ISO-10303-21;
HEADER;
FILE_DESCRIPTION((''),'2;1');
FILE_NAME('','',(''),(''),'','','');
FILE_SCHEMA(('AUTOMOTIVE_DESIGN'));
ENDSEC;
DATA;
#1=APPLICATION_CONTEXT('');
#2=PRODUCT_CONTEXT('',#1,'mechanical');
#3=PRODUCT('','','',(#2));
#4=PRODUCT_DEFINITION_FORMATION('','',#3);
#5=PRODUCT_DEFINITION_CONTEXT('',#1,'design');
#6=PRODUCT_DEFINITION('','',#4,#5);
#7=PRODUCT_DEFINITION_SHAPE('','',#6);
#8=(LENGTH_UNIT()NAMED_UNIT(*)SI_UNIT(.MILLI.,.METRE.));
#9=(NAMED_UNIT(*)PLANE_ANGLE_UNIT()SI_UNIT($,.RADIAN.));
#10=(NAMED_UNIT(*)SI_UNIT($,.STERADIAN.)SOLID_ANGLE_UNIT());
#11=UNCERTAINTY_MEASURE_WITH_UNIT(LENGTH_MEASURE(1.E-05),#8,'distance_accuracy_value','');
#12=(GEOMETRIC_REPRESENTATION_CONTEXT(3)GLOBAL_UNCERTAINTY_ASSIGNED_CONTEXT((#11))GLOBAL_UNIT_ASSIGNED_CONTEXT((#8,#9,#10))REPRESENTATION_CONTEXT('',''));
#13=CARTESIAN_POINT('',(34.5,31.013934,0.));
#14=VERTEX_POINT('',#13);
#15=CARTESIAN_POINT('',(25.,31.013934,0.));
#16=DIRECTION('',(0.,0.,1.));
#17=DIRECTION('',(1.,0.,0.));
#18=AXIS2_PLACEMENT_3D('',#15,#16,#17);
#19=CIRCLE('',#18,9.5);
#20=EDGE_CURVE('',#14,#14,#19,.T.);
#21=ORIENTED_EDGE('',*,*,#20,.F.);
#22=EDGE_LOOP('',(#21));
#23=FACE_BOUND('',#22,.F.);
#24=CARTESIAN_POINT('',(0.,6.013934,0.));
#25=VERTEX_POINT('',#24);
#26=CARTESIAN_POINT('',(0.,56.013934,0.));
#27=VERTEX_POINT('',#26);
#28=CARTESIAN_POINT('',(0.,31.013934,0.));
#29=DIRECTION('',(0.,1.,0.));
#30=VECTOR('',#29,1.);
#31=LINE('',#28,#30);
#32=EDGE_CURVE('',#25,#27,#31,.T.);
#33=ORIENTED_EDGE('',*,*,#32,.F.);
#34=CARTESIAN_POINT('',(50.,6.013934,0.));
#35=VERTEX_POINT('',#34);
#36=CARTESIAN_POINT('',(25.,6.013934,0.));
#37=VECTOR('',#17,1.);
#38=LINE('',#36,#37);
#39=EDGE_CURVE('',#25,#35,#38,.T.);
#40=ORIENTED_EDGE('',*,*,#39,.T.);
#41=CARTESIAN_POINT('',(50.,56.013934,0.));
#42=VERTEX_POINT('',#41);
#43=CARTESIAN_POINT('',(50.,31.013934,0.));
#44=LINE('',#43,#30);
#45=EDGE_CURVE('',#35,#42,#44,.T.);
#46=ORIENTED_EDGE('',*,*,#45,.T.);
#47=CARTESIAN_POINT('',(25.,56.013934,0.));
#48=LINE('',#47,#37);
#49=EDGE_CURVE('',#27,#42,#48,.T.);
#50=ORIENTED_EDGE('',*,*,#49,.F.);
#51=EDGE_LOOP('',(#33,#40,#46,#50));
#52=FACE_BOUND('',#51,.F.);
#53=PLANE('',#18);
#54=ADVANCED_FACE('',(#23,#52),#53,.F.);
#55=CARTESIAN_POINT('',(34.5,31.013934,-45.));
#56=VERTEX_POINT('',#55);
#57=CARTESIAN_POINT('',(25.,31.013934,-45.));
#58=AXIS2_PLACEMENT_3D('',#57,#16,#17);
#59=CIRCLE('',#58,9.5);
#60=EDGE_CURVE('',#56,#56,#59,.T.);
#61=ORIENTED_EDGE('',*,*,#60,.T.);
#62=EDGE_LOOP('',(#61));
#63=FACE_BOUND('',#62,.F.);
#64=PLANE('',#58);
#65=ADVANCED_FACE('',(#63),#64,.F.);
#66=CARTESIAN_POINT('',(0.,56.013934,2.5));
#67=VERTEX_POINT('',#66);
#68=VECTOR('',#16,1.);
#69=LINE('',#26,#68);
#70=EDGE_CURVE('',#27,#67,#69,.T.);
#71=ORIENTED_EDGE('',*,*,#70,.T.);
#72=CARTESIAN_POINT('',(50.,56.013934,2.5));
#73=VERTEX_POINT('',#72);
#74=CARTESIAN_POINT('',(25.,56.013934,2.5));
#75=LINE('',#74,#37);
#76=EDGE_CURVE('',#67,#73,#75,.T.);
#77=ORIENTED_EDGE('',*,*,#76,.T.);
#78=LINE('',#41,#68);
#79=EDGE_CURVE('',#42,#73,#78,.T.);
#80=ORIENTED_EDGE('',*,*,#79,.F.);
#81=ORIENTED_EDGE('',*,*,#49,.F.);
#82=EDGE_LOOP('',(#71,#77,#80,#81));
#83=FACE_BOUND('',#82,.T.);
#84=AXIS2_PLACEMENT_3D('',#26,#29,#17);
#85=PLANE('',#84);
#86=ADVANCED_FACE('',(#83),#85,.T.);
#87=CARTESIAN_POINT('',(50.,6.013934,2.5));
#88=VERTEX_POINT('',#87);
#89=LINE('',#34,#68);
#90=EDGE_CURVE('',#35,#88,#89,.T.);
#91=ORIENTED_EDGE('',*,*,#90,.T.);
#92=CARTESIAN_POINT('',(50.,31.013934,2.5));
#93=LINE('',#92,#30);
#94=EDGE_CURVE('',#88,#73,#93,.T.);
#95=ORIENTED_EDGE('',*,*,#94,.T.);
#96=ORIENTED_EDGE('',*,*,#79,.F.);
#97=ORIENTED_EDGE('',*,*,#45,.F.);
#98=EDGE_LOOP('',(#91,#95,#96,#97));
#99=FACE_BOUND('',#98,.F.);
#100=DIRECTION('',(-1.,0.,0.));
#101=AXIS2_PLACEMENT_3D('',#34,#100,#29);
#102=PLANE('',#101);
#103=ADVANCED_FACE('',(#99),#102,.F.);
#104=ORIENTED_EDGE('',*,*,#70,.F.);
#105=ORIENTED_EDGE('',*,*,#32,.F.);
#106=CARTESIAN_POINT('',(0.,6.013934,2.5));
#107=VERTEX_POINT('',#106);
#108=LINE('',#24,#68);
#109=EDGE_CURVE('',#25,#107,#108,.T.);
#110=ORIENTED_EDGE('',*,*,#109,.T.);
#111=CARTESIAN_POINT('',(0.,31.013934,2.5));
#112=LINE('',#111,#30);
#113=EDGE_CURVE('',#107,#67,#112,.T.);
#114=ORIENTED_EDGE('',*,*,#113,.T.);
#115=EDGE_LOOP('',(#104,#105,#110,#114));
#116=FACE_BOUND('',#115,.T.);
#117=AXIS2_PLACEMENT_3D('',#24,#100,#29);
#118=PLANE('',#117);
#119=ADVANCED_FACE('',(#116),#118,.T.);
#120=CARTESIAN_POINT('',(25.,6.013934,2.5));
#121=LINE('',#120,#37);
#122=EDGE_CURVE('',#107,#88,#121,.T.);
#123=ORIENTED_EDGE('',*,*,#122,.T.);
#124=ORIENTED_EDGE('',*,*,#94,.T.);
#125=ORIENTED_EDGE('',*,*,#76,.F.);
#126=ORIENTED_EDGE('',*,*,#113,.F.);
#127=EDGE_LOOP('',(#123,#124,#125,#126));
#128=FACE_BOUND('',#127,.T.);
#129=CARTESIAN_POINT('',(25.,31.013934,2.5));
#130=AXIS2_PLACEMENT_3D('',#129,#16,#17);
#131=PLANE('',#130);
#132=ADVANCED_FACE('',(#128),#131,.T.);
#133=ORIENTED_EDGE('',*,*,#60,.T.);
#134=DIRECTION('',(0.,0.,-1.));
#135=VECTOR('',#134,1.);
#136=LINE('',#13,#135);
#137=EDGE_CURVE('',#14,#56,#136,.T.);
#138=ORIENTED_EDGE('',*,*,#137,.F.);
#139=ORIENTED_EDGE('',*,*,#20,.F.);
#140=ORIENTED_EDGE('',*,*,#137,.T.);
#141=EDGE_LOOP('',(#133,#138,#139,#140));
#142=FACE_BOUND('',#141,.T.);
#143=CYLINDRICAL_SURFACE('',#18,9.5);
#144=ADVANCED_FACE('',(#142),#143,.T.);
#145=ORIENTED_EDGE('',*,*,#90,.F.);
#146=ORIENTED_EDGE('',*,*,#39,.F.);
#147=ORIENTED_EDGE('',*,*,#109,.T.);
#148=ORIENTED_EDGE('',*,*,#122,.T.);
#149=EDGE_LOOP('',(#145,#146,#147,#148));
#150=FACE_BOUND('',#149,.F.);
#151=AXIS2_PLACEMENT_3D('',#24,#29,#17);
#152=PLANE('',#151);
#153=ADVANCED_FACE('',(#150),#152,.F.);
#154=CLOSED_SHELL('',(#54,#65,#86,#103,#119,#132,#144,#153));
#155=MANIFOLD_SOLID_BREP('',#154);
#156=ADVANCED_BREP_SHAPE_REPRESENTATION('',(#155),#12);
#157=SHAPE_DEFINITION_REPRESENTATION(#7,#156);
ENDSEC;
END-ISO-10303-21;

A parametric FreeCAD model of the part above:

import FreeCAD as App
import Part
import Sketcher

doc = App.newDocument("Part")
params = doc.addObject("Spreadsheet::Sheet", "Params")
for row, (alias, value) in enumerate([
    ("sketch1_width", "50 mm"),
    ("pad1_length", "2.5 mm"),
    ("sketch2_diameter", "19 mm"),
    ("pad2_length", "45 mm"),
], start=1):
    params.set(f"A{row}", alias)
    params.set(f"B{row}", "=" + value)
    params.setAlias(f"B{row}", alias)

body = doc.addObject("PartDesign::Body", "Body")

sketch1 = body.newObject("Sketcher::SketchObject", "Sketch")
sketch1.AttachmentSupport = (doc.getObject("XY_Plane"), [""])
sketch1.MapMode = "FlatFace"
sketch1.addGeometry([
    Part.LineSegment(App.Vector(0, 56, 0), App.Vector(0, 6, 0)),
    Part.LineSegment(App.Vector(0, 6, 0), App.Vector(50, 6, 0)),
    Part.LineSegment(App.Vector(50, 6, 0), App.Vector(50, 56, 0)),
    Part.LineSegment(App.Vector(50, 56, 0), App.Vector(0, 56, 0)),
], False)
sketch1.addConstraint([
    Sketcher.Constraint("Coincident", 0, 2, 1, 1),
    Sketcher.Constraint("Coincident", 1, 2, 2, 1),
    Sketcher.Constraint("Coincident", 2, 2, 3, 1),
    Sketcher.Constraint("Coincident", 3, 2, 0, 1),
    Sketcher.Constraint("Vertical", 0),
    Sketcher.Constraint("Horizontal", 1),
    Sketcher.Constraint("Vertical", 2),
    Sketcher.Constraint("Horizontal", 3),
    Sketcher.Constraint("PointOnObject", 0, 2, -2),
    Sketcher.Constraint("Equal", 3, 0),
    Sketcher.Constraint("DistanceX", 1, 1, 1, 2, 50.0),
    Sketcher.Constraint("DistanceY", -1, 1, 0, 2, 6.013934),
])
sketch1.setExpression("Constraints[10]", "Params.sketch1_width")
pad1 = body.newObject("PartDesign::Pad", "Pad")
pad1.Profile = sketch1
pad1.setExpression("Length", "Params.pad1_length")

sketch2 = body.newObject("Sketcher::SketchObject", "Sketch001")
sketch2.AttachmentSupport = (doc.getObject("XY_Plane"), [""])
sketch2.MapMode = "FlatFace"
sketch2.addGeometry(Part.Circle(App.Vector(25, 31, 0), App.Vector(0, 0, 1), 10), False)
sketch2.addConstraint([
    Sketcher.Constraint("Diameter", 0, 19.0),
    Sketcher.Constraint("DistanceX", -1, 1, 0, 3, 25.0),
    Sketcher.Constraint("DistanceY", -1, 1, 0, 3, 31.013934),
])
sketch2.setExpression("Constraints[0]", "Params.sketch2_diameter")
pad2 = body.newObject("PartDesign::Pad", "Pad001")
pad2.Profile = sketch2
pad2.setExpression("Length", "Params.pad2_length")
pad2.Reversed = True

doc.recompute()
